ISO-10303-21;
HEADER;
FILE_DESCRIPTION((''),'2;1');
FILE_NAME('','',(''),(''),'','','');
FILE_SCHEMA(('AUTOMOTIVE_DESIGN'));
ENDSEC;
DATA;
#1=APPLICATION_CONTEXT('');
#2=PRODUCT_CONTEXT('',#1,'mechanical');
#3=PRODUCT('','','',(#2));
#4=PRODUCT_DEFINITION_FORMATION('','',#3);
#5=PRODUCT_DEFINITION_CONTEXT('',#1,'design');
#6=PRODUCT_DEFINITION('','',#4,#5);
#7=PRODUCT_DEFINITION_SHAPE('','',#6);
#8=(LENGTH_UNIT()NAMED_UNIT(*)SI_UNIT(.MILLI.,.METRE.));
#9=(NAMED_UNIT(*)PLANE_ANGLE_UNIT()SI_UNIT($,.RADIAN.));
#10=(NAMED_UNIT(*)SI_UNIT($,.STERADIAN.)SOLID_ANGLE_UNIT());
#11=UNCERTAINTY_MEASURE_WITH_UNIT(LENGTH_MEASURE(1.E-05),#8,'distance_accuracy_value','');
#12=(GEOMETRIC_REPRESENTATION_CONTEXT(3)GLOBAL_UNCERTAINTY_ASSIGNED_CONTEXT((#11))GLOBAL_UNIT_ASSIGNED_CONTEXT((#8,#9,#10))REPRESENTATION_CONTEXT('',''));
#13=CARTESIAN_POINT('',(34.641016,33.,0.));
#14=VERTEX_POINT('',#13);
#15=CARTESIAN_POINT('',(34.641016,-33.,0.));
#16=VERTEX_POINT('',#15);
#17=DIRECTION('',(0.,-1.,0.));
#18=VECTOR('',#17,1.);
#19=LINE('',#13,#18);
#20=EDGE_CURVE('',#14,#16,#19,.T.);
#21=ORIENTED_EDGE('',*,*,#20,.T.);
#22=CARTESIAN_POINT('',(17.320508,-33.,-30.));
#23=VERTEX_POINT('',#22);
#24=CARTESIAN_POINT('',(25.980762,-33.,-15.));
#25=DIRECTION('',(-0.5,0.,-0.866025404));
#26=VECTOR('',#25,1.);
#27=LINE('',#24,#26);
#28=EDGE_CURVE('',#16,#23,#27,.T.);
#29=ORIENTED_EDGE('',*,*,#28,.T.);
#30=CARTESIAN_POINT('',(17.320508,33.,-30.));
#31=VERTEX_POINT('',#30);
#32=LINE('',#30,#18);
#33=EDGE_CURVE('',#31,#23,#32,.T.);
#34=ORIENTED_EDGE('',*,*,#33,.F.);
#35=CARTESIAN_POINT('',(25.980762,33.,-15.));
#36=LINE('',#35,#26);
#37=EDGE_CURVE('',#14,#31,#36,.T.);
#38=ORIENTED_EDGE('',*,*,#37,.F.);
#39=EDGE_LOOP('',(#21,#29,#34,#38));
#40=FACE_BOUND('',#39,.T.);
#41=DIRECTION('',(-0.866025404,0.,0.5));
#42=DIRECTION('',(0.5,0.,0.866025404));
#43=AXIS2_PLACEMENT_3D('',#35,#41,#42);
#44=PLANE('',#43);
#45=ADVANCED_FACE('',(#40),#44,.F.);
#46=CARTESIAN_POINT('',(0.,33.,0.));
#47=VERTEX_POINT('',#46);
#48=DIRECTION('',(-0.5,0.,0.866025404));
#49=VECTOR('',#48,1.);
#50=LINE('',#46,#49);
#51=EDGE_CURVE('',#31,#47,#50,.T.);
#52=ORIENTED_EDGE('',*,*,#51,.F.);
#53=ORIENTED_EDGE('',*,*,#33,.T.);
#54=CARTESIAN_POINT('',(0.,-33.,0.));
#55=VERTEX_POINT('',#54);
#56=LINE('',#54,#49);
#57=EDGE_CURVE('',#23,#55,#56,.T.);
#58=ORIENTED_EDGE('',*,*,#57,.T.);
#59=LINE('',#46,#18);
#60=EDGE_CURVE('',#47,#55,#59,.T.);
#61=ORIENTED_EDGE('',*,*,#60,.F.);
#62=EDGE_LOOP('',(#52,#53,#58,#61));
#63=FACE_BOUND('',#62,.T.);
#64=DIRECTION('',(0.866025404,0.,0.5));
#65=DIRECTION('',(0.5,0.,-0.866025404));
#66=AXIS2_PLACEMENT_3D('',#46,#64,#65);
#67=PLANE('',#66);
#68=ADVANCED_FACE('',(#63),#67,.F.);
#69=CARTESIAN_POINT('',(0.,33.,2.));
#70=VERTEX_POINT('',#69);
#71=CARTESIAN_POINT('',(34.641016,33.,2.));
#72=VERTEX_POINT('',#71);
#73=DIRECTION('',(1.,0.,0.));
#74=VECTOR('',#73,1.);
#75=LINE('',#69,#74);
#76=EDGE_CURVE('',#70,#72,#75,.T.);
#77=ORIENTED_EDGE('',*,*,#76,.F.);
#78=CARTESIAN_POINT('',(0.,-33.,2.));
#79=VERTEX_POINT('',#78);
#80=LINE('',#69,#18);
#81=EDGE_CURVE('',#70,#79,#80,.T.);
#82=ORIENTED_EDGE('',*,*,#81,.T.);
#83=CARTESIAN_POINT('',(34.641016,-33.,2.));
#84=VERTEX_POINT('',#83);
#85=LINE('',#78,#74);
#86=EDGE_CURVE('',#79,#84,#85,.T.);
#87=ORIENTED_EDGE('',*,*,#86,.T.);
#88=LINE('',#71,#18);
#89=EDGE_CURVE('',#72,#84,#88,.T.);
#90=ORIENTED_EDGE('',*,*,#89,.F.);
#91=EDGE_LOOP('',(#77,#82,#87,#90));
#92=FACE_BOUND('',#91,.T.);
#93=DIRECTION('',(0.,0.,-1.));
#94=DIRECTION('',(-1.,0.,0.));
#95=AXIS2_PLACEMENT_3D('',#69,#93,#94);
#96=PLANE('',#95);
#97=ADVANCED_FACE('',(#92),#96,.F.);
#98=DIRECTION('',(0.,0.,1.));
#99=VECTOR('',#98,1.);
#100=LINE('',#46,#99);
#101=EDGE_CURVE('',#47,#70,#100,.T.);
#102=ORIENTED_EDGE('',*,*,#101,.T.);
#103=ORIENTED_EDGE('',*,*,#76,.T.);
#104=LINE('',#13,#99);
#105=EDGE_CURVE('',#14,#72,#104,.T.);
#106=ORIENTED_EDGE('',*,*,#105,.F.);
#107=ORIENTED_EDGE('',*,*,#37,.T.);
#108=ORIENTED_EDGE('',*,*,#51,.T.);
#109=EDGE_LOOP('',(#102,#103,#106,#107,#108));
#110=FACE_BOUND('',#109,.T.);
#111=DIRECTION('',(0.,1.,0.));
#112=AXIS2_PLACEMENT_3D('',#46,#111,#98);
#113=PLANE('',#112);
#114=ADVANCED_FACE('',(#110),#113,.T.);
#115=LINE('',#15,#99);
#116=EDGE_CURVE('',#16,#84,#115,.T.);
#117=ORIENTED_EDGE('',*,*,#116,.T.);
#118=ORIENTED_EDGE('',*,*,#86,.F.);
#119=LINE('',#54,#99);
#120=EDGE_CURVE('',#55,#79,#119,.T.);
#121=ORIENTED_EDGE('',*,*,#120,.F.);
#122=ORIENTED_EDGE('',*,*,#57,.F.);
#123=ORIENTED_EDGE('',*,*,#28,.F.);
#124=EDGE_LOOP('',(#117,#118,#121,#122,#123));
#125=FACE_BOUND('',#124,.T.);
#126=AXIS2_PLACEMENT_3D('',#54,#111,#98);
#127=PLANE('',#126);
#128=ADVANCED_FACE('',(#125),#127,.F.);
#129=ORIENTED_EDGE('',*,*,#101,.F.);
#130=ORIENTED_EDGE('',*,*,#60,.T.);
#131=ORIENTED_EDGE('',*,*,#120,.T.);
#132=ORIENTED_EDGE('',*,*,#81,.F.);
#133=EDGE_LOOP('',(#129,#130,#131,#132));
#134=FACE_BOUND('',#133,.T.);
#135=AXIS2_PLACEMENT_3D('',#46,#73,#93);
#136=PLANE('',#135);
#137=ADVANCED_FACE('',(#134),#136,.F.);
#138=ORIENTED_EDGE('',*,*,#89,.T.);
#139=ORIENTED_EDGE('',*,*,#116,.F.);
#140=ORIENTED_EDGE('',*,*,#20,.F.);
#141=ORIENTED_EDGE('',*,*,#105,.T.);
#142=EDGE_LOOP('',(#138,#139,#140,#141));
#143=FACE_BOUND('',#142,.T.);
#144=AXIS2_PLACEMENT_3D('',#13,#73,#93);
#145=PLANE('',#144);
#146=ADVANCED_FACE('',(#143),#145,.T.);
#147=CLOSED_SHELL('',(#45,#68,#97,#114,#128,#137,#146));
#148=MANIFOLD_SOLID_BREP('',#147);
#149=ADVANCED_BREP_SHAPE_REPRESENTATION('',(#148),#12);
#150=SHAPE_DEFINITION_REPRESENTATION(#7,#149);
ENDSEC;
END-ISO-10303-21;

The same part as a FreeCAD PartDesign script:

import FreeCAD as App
import Part
import Sketcher
Q = App.Units.Quantity


def add_polygon(sketch, points):
    """Adds a closed chain of lines whose ends are joined by coincident constraints."""
    first, n = sketch.GeometryCount, len(points)
    for a, b in zip(points, points[1:] + points[:1]):
        sketch.addGeometry(Part.LineSegment(App.Vector(*a, 0), App.Vector(*b, 0)), False)
    for i in range(n):
        sketch.addConstraint(Sketcher.Constraint("Coincident", first + i, 2, first + (i + 1) % n, 1))

doc = App.newDocument("Part")
body = doc.addObject("PartDesign::Body", "Body")

# Sketch on XZ plane
sketch1 = doc.addObject("Sketcher::SketchObject", "Sketch")
body.addObject(sketch1)
sketch1.AttachmentSupport = (doc.XZ_Plane, [""])
sketch1.MapMode = "FlatFace"
add_polygon(sketch1, [(34.6, 0), (17.3, -30), (0, 0), (0, 2), (34.6, 2)])  # lines 0-4
sketch1.addConstraint([
    Sketcher.Constraint("Vertical", 2),
    Sketcher.Constraint("Horizontal", 3),
    Sketcher.Constraint("Vertical", 4),
    Sketcher.Constraint("Coincident", 1, 2, -1, 1),
    Sketcher.Constraint("PointOnObject", 4, 2, -1),
    Sketcher.Constraint("Equal", 0, 1),
    Sketcher.Constraint("DistanceY", 2, 1, 2, 2, 2.0),
    Sketcher.Constraint("Angle", 0, Q("-120 deg")),
    Sketcher.Constraint("DistanceY", 0, 2, -1, 1, 30.0),
])
pad1 = doc.addObject("PartDesign::Pad", "Pad")
body.addObject(pad1)
pad1.Profile = sketch1
pad1.Length = 66
pad1.Midplane = True

doc.recompute()
